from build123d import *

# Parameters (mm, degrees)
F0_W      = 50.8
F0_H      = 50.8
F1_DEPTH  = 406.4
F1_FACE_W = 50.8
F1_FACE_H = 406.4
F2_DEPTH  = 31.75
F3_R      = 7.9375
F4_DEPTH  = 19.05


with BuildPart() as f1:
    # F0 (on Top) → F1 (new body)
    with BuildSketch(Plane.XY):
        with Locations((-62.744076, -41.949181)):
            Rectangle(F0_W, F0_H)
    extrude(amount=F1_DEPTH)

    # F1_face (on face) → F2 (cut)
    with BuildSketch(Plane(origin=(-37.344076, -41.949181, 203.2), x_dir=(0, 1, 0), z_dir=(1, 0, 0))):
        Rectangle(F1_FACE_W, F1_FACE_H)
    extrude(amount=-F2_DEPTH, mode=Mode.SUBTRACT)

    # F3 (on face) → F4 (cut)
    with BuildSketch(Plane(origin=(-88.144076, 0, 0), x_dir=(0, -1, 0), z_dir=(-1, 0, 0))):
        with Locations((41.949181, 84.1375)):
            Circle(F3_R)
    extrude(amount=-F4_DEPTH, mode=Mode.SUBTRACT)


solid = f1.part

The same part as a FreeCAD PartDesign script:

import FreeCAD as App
import Part
import Sketcher

V = App.Vector
Q = App.Units.Quantity


def add_polygon(sketch, points):
    """Adds a closed chain of lines whose ends are joined by coincident constraints."""
    first, n = sketch.GeometryCount, len(points)
    for a, b in zip(points, points[1:] + points[:1]):
        sketch.addGeometry(Part.LineSegment(App.Vector(*a, 0), App.Vector(*b, 0)), False)
    for i in range(n):
        sketch.addConstraint(Sketcher.Constraint("Coincident", first + i, 2, first + (i + 1) % n, 1))

doc = App.newDocument("Part")
body = doc.addObject("PartDesign::Body", "Body")

sketch1 = body.newObject("Sketcher::SketchObject", "Sketch")
sketch1.AttachmentSupport = (doc.getObject("XY_Plane"), [""])
sketch1.MapMode = "FlatFace"
add_polygon(sketch1, [(-88, -17), (-88, -67), (-37, -67), (-37, -17)])
sketch1.addConstraint([
    Sketcher.Constraint("Vertical", 0),
    Sketcher.Constraint("Horizontal", 1),
    Sketcher.Constraint("Vertical", 2),
    Sketcher.Constraint("Horizontal", 3),
    Sketcher.Constraint("Equal", 3, 0),
    Sketcher.Constraint("DistanceX", 1, 1, 1, 2, Q("2 in")),
    Sketcher.Constraint("DistanceY", 0, 2, -1, 1, Q("67.349181 mm")),
    Sketcher.Constraint("DistanceX", 0, 2, -1, 1, Q("88.144076 mm")),
])
pad1 = body.newObject("PartDesign::Pad", "Pad")
pad1.Profile = sketch1
pad1.Length = Q("16 in")

sketch2 = body.newObject("Sketcher::SketchObject", "Sketch001")
sketch2.AttachmentSupport = (doc.getObject("YZ_Plane"), [""])
sketch2.MapMode = "FlatFace"
sketch2.AttachmentOffset = App.Placement(V(0, 0, -37.344076), App.Rotation())
add_polygon(sketch2, [(-67, 406), (-67, 0), (-17, 0), (-17, 406)])
sketch2.addConstraint([
    Sketcher.Constraint("Vertical", 0),
    Sketcher.Constraint("Horizontal", 1),
    Sketcher.Constraint("Vertical", 2),
    Sketcher.Constraint("Horizontal", 3),
    Sketcher.Constraint("PointOnObject", 0, 2, -1),
    Sketcher.Constraint("DistanceX", 1, 1, 1, 2, Q("2 in")),
    Sketcher.Constraint("DistanceY", 0, 2, 0, 1, Q("16 in")),
    Sketcher.Constraint("DistanceX", 0, 2, -1, 1, Q("67.349181 mm")),
])
pocket1 = body.newObject("PartDesign::Pocket", "Pocket")
pocket1.Profile = sketch2
pocket1.Length = Q("1.25 in")

sketch3 = body.newObject("Sketcher::SketchObject", "Sketch002")
sketch3.AttachmentSupport = (doc.getObject("YZ_Plane"), [""])
sketch3.MapMode = "FlatFace"
sketch3.AttachmentOffset = App.Placement(V(0, 0, -88.144076), App.Rotation())
sketch3.addGeometry(Part.Circle(V(-42, 84, 0), V(0, 0, 1), 8), False)
sketch3.addConstraint([
    Sketcher.Constraint("Diameter", 0, Q("0.625 in")),
    Sketcher.Constraint("DistanceY", -1, 1, 0, 3, Q("3.3125 in")),
    Sketcher.Constraint("DistanceX", 0, 3, -1, 1, Q("41.949181 mm")),
])
pocket2 = body.newObject("PartDesign::Pocket", "Pocket001")
pocket2.Profile = sketch3
pocket2.Length = Q("0.75 in")
pocket2.Reversed = True

doc.recompute()
